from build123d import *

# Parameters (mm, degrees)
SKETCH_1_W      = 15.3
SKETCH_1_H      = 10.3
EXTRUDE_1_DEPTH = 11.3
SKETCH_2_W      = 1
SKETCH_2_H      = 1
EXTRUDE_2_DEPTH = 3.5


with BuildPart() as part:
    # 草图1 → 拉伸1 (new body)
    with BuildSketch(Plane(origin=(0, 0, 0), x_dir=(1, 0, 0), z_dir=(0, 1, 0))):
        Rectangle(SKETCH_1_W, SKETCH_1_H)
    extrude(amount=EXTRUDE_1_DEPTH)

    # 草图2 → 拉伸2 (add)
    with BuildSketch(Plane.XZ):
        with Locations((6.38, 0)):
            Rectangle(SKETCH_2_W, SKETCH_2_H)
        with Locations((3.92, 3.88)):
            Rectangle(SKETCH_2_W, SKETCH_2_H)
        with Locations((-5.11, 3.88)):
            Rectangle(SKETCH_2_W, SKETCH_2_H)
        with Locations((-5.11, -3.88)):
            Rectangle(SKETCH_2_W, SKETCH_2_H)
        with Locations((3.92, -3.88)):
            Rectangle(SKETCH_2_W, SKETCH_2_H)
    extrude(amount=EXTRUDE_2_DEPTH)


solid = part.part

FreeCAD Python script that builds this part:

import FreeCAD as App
import Part
import Sketcher

V = App.Vector


def add_polygon(sketch, points):
    """Adds a closed chain of lines whose ends are joined by coincident constraints."""
    first, n = sketch.GeometryCount, len(points)
    for a, b in zip(points, points[1:] + points[:1]):
        sketch.addGeometry(Part.LineSegment(App.Vector(*a, 0), App.Vector(*b, 0)), False)
    for i in range(n):
        sketch.addConstraint(Sketcher.Constraint("Coincident", first + i, 2, first + (i + 1) % n, 1))

doc = App.newDocument("Part")
body = doc.addObject("PartDesign::Body", "Body")

# Sketch on XZ plane
sketch1 = body.newObject("Sketcher::SketchObject", "Sketch")
sketch1.AttachmentSupport = (doc.getObject("XZ_Plane"), [""])
sketch1.MapMode = "FlatFace"
add_polygon(sketch1, [(-8, -5), (-8, 5), (8, 5), (8, -5)])  # lines 0-3
sketch1.addConstraint([
    Sketcher.Constraint("Vertical", 0),
    Sketcher.Constraint("Horizontal", 1),
    Sketcher.Constraint("Vertical", 2),
    Sketcher.Constraint("Horizontal", 3),
    Sketcher.Constraint("Symmetric", 0, 2, 2, 2, -1, 1),
    Sketcher.Constraint("DistanceX", 1, 1, 1, 2, 15.3),
    Sketcher.Constraint("DistanceY", 0, 1, 0, 2, 10.3),
])
pad1 = body.newObject("PartDesign::Pad", "Pad")
pad1.Profile = sketch1
pad1.Length = 11.3
pad1.Reversed = True

# Sketch on XZ plane
sketch2 = body.newObject("Sketcher::SketchObject", "Sketch001")
sketch2.AttachmentSupport = (doc.getObject("XZ_Plane"), [""])
sketch2.MapMode = "FlatFace"
add_polygon(sketch2, [(5.9, 0.5), (5.9, -0.5), (6.9, -0.5), (6.9, 0.5)])  # lines 0-3
add_polygon(sketch2, [(3.4, 4.4), (3.4, 3.4), (4.4, 3.4), (4.4, 4.4)])  # lines 4-7
add_polygon(sketch2, [(-5.6, 4.4), (-5.6, 3.4), (-4.6, 3.4), (-4.6, 4.4)])  # lines 8-11
add_polygon(sketch2, [(-5.6, -3.4), (-5.6, -4.4), (-4.6, -4.4), (-4.6, -3.4)])  # lines 12-15
add_polygon(sketch2, [(3.4, -3.4), (3.4, -4.4), (4.4, -4.4), (4.4, -3.4)])  # lines 16-19
sketch2.addConstraint([
    Sketcher.Constraint("Vertical", 0),
    Sketcher.Constraint("Horizontal", 1),
    Sketcher.Constraint("Vertical", 2),
    Sketcher.Constraint("Horizontal", 3),
    Sketcher.Constraint("Vertical", 4),
    Sketcher.Constraint("Horizontal", 5),
    Sketcher.Constraint("Vertical", 6),
    Sketcher.Constraint("Horizontal", 7),
    Sketcher.Constraint("Vertical", 8),
    Sketcher.Constraint("Horizontal", 9),
    Sketcher.Constraint("Vertical", 10),
    Sketcher.Constraint("Horizontal", 11),
    Sketcher.Constraint("Vertical", 12),
    Sketcher.Constraint("Horizontal", 13),
    Sketcher.Constraint("Vertical", 14),
    Sketcher.Constraint("Horizontal", 15),
    Sketcher.Constraint("Vertical", 16),
    Sketcher.Constraint("Horizontal", 17),
    Sketcher.Constraint("Vertical", 18),
    Sketcher.Constraint("Horizontal", 19),
    Sketcher.Constraint("Symmetric", 11, 2, 12, 2, -1),
    Sketcher.Constraint("Symmetric", 9, 2, 14, 2, -1),
    Sketcher.Constraint("Symmetric", 7, 2, 16, 2, -1),
    Sketcher.Constraint("Symmetric", 5, 2, 18, 2, -1),
    Sketcher.Constraint("Horizontal", 5, 2, 8, 2),
    Sketcher.Constraint("Horizontal", 7, 2, 10, 2),
    Sketcher.Constraint("Equal", 3, 5),
    Sketcher.Constraint("Equal", 7, 9),
    Sketcher.Constraint("Equal", 19, 0),
    Sketcher.Constraint("Equal", 2, 4),
    Sketcher.Constraint("DistanceX", 1, 1, 1, 2, 1.0),
    Sketcher.Constraint("DistanceY", 0, 2, -1, 1, 0.5),
    Sketcher.Constraint("DistanceX", -1, 1, 0, 2, 5.88),
    Sketcher.Constraint("DistanceX", -1, 1, 4, 2, 3.42),
    Sketcher.Constraint("DistanceY", -1, 1, 4, 2, 3.38),
    Sketcher.Constraint("DistanceX", 8, 2, -1, 1, 5.61),
])
pad2 = body.newObject("PartDesign::Pad", "Pad001")
pad2.Profile = sketch2
pad2.Length = 3.5

doc.recompute()
